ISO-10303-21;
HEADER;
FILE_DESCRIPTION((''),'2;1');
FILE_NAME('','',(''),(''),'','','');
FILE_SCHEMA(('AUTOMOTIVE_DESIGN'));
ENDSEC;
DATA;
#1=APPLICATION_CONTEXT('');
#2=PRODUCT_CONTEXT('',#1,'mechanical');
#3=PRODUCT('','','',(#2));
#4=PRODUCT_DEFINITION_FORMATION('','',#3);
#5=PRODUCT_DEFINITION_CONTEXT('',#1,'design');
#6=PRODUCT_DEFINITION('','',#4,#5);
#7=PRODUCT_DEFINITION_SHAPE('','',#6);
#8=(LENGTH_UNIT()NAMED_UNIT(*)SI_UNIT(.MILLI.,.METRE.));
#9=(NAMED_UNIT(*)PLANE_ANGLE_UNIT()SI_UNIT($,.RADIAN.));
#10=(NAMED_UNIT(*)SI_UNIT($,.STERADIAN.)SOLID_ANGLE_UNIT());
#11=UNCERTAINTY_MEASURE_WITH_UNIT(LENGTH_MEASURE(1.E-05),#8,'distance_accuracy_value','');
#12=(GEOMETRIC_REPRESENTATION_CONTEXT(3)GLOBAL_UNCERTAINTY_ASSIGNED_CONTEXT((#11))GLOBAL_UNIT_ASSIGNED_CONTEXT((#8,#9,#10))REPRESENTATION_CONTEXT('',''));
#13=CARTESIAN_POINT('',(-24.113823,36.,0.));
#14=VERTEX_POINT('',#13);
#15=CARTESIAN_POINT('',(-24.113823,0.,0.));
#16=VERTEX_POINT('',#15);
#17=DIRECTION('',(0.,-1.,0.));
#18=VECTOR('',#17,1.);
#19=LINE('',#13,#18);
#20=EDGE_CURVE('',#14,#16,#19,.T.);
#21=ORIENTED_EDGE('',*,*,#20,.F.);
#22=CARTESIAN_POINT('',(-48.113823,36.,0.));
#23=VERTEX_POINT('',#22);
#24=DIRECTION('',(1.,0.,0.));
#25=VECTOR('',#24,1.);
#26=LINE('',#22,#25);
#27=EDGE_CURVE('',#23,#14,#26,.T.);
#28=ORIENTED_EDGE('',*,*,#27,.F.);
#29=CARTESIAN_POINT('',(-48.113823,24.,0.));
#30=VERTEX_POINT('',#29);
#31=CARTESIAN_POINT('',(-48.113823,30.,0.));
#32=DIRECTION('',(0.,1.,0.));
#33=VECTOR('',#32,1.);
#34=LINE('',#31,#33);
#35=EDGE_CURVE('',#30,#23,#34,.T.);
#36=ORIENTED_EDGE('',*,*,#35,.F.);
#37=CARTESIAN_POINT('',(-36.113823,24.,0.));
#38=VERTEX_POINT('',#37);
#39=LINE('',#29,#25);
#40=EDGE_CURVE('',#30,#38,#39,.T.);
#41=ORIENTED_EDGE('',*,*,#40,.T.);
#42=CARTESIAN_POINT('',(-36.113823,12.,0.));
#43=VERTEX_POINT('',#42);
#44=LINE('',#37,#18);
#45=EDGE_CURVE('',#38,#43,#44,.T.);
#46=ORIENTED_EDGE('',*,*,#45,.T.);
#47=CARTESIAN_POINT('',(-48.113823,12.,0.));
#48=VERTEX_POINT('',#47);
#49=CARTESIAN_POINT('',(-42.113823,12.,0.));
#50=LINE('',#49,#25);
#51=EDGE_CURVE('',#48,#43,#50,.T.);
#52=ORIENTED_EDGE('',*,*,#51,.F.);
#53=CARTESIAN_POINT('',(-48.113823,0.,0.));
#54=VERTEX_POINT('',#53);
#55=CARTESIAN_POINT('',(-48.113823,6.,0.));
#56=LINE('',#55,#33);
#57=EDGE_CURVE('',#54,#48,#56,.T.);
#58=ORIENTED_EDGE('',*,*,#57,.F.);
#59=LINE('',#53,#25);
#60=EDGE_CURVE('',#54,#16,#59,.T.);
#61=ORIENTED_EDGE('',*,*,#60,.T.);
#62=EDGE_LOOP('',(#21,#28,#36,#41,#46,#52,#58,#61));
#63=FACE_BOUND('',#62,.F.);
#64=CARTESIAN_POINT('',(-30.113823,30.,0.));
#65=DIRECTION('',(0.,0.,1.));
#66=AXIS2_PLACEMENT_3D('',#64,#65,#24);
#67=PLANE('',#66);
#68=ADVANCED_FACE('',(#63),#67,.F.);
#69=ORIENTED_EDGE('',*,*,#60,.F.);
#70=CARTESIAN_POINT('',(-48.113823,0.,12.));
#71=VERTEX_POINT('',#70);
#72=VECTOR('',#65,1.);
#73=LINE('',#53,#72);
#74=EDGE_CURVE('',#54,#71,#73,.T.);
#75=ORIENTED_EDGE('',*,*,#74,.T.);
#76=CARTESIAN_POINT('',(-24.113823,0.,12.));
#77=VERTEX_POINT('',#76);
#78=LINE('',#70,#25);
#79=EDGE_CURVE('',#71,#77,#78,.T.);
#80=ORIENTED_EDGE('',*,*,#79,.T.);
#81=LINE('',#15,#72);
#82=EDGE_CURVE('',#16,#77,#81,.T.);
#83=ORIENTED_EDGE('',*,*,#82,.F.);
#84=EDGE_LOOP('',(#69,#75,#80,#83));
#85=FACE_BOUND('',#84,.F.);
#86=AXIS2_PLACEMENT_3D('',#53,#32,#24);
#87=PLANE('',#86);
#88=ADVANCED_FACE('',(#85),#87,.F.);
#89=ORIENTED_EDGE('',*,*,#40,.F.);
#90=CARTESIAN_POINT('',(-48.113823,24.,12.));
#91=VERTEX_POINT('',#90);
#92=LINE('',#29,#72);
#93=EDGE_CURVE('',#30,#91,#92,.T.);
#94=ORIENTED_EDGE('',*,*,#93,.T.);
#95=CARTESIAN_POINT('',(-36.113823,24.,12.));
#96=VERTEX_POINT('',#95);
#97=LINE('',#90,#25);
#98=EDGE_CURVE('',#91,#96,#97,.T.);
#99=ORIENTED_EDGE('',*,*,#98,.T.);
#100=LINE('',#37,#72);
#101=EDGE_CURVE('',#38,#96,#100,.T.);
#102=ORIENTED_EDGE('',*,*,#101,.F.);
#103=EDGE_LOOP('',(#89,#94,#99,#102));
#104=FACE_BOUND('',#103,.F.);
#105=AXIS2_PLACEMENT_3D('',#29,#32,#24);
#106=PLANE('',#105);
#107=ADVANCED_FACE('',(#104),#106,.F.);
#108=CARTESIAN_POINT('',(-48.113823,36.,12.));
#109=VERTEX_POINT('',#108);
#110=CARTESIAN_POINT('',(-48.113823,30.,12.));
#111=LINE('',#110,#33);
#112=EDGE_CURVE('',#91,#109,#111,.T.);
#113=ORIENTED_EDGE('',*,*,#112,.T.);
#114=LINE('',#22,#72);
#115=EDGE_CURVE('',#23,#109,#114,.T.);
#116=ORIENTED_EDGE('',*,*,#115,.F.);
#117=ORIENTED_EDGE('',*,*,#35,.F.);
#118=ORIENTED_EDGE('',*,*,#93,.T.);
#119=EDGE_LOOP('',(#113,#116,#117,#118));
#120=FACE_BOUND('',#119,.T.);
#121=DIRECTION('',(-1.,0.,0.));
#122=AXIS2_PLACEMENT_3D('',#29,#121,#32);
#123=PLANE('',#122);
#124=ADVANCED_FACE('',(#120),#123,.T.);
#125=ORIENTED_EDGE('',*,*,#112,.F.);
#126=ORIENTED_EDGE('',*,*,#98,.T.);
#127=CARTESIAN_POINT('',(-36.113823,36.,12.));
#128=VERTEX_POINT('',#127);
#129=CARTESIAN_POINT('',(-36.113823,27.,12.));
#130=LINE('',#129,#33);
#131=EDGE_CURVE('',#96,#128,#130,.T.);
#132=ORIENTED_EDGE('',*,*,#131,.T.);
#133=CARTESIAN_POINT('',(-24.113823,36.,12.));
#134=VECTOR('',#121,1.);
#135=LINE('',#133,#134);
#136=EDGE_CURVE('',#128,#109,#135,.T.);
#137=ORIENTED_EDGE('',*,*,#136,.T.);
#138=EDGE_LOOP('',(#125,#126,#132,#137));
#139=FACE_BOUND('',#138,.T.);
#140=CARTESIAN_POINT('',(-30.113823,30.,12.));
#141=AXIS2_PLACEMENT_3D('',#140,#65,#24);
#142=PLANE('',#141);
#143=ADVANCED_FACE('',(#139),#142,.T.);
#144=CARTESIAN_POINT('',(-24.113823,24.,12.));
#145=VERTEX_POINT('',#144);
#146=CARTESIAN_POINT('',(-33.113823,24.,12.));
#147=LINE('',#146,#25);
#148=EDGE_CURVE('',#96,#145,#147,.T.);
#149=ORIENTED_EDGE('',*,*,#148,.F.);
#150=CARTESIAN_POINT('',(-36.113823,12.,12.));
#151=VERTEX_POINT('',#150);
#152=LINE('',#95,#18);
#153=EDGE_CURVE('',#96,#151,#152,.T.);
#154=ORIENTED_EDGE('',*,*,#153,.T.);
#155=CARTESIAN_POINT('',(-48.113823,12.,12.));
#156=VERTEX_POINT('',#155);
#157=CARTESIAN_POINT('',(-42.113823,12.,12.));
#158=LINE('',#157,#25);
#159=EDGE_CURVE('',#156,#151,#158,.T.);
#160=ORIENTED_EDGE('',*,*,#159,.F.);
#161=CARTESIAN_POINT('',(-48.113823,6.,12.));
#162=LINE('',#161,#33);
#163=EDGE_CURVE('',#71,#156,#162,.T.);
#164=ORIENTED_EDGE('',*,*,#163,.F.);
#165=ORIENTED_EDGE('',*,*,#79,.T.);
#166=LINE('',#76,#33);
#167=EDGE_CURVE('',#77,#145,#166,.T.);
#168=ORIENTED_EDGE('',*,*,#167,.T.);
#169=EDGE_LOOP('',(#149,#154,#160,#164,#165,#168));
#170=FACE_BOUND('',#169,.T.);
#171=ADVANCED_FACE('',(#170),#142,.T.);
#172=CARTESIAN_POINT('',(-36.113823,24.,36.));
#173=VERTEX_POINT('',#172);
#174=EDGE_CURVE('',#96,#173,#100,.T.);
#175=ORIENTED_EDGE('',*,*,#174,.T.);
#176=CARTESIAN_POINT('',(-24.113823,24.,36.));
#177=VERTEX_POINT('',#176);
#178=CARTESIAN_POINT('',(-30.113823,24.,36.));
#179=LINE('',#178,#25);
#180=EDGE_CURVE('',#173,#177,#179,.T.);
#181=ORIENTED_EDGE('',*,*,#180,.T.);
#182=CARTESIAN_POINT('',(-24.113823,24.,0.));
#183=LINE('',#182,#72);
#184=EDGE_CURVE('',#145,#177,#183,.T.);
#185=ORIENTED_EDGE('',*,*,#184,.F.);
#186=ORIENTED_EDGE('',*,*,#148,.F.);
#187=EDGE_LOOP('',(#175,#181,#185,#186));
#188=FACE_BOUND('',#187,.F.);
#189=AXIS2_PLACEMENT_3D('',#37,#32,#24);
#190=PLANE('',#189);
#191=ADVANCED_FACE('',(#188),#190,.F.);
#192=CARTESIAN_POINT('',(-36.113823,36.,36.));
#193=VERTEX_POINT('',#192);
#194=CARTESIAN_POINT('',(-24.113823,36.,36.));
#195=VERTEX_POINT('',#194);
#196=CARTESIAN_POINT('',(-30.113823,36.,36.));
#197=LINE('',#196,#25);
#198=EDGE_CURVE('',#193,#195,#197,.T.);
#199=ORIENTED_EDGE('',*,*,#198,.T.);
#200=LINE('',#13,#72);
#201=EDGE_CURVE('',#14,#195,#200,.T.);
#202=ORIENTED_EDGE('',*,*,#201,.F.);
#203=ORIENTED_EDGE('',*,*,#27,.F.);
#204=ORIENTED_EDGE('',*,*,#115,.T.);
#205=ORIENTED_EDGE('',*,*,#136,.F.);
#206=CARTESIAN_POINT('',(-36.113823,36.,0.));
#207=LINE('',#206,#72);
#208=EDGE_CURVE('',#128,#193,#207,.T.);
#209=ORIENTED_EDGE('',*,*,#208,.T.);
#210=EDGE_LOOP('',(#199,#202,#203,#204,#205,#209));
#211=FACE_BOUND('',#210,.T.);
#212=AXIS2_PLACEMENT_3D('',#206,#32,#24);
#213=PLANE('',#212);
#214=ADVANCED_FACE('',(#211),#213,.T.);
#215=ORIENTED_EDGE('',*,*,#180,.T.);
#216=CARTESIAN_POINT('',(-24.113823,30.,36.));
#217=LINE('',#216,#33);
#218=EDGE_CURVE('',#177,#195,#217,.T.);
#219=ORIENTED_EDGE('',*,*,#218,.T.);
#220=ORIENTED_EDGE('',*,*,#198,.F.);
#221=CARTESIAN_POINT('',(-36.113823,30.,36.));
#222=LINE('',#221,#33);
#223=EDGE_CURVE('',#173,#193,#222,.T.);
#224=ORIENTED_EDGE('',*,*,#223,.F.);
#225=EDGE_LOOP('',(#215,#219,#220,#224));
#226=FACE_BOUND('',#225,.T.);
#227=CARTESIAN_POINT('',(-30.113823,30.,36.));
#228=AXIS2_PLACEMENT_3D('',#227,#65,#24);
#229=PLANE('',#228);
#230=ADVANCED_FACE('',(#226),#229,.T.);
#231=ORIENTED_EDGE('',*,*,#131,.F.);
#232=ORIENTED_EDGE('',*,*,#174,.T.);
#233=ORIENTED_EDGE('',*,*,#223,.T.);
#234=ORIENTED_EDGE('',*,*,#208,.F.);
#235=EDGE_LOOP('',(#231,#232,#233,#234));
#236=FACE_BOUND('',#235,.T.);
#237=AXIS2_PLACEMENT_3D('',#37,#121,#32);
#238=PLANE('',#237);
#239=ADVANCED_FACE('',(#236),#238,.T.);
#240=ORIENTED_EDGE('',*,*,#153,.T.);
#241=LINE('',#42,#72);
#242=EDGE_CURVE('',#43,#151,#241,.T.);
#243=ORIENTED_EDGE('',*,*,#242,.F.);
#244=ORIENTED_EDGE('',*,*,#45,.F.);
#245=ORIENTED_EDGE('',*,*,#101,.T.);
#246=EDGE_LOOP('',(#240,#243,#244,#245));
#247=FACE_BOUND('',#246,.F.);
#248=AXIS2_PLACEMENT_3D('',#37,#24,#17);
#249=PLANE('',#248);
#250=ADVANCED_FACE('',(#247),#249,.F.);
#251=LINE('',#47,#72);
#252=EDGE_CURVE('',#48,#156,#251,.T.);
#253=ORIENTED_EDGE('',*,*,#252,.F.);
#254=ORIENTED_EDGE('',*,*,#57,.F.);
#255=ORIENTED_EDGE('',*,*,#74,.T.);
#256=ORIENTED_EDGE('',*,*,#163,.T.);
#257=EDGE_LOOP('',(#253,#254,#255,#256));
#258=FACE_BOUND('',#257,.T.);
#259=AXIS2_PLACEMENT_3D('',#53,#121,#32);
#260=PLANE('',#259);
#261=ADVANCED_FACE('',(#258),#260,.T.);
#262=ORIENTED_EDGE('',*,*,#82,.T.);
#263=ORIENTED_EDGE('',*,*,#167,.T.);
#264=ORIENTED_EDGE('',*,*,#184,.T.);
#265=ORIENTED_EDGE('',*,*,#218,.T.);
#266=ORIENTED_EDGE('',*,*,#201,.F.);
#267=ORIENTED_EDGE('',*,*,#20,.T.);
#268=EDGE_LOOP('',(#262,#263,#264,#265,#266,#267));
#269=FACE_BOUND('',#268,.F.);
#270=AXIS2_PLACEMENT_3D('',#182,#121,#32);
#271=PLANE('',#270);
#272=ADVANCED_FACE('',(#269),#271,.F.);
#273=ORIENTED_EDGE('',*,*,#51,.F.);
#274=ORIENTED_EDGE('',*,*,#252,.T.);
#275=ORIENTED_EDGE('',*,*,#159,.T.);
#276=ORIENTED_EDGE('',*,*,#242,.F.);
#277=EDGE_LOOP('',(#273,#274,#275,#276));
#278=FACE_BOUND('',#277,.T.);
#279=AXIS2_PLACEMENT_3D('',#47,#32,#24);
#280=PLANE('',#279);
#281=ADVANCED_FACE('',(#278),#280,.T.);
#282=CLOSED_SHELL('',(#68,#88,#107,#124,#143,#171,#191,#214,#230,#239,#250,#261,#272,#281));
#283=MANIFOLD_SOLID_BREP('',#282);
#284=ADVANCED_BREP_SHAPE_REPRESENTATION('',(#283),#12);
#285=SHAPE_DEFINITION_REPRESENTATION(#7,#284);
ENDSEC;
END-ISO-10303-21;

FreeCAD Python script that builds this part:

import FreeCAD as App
import Part
import Sketcher
from FreeCAD import Vector

doc = App.newDocument("Part")
body = doc.addObject("PartDesign::Body", "Body")

# Sketch on XY plane
sketch1 = body.newObject("Sketcher::SketchObject", "Sketch")
sketch1.AttachmentSupport = (doc.getObject("XY_Plane"), [""])
sketch1.MapMode = "FlatFace"
sketch1.addGeometry([
    Part.LineSegment(Vector(-36.113823, 36, 0), Vector(-36.113823, 24, 0)),
    Part.LineSegment(Vector(-36.113823, 24, 0), Vector(-24.113823, 24, 0)),
    Part.LineSegment(Vector(-24.113823, 24, 0), Vector(-24.113823, 36, 0)),
    Part.LineSegment(Vector(-24.113823, 36, 0), Vector(-36.113823, 36, 0)),
], False)
sketch1.addConstraint([
    Sketcher.Constraint("Coincident", 0, 2, 1, 1),
    Sketcher.Constraint("Coincident", 1, 2, 2, 1),
    Sketcher.Constraint("Coincident", 2, 2, 3, 1),
    Sketcher.Constraint("Coincident", 3, 2, 0, 1),
    Sketcher.Constraint("Vertical", 0),
    Sketcher.Constraint("Horizontal", 1),
    Sketcher.Constraint("Vertical", 2),
    Sketcher.Constraint("Horizontal", 3),
    Sketcher.Constraint("Equal", 3, 0),
    Sketcher.Constraint("DistanceX", 1, 1, 1, 2, 12.0),
    Sketcher.Constraint("DistanceY", -1, 1, 0, 2, 24.0),
    Sketcher.Constraint("DistanceX", 0, 2, -1, 1, 36.113823),
])
pad1 = body.newObject("PartDesign::Pad", "Pad")
pad1.Profile = sketch1
pad1.Length = 36

# Sketch on XY plane
sketch2 = body.newObject("Sketcher::SketchObject", "Sketch001")
sketch2.AttachmentSupport = (doc.getObject("XY_Plane"), [""])
sketch2.MapMode = "FlatFace"
sketch2.addGeometry([
    Part.LineSegment(Vector(-24.113823, 36, 0), Vector(-48.113823, 36, 0)),  # 0
    Part.LineSegment(Vector(-48.113823, 36, 0), Vector(-48.113823, 24, 0)),  # 1
    Part.LineSegment(Vector(-48.113823, 24, 0), Vector(-36.113823, 24, 0)),  # 2
    Part.LineSegment(Vector(-36.113823, 24, 0), Vector(-36.113823, 12, 0)),  # 3
    Part.LineSegment(Vector(-36.113823, 12, 0), Vector(-48.113823, 12, 0)),  # 4
    Part.LineSegment(Vector(-48.113823, 12, 0), Vector(-48.113823, 0, 0)),  # 5
    Part.LineSegment(Vector(-48.113823, 0, 0), Vector(-24.113823, 0, 0)),  # 6
    Part.LineSegment(Vector(-24.113823, 0, 0), Vector(-24.113823, 36, 0)),  # 7
], False)
sketch2.addConstraint([
    Sketcher.Constraint("Coincident", 0, 2, 1, 1),
    Sketcher.Constraint("Coincident", 1, 2, 2, 1),
    Sketcher.Constraint("Coincident", 2, 2, 3, 1),
    Sketcher.Constraint("Coincident", 3, 2, 4, 1),
    Sketcher.Constraint("Coincident", 4, 2, 5, 1),
    Sketcher.Constraint("Coincident", 5, 2, 6, 1),
    Sketcher.Constraint("Coincident", 6, 2, 7, 1),
    Sketcher.Constraint("Coincident", 7, 2, 0, 1),
    Sketcher.Constraint("Horizontal", 0),
    Sketcher.Constraint("Vertical", 1),
    Sketcher.Constraint("Horizontal", 2),
    Sketcher.Constraint("Vertical", 3),
    Sketcher.Constraint("Horizontal", 4),
    Sketcher.Constraint("Vertical", 5),
    Sketcher.Constraint("Horizontal", 6),
    Sketcher.Constraint("Vertical", 7),
    Sketcher.Constraint("PointOnObject", 5, 2, -1),
    Sketcher.Constraint("Vertical", 1, 2, 4, 2),
    Sketcher.Constraint("Equal", 4, 1),
    Sketcher.Constraint("Equal", 1, 3),
    Sketcher.Constraint("Equal", 3, 5),
    Sketcher.Constraint("DistanceX", 0, 2, 0, 1, 24.0),
    Sketcher.Constraint("DistanceX", 2, 1, 2, 2, 12.0),
    Sketcher.Constraint("DistanceX", 0, 2, -1, 1, 48.113823),
])
pad2 = body.newObject("PartDesign::Pad", "Pad001")
pad2.Profile = sketch2
pad2.Length = 12

doc.recompute()
